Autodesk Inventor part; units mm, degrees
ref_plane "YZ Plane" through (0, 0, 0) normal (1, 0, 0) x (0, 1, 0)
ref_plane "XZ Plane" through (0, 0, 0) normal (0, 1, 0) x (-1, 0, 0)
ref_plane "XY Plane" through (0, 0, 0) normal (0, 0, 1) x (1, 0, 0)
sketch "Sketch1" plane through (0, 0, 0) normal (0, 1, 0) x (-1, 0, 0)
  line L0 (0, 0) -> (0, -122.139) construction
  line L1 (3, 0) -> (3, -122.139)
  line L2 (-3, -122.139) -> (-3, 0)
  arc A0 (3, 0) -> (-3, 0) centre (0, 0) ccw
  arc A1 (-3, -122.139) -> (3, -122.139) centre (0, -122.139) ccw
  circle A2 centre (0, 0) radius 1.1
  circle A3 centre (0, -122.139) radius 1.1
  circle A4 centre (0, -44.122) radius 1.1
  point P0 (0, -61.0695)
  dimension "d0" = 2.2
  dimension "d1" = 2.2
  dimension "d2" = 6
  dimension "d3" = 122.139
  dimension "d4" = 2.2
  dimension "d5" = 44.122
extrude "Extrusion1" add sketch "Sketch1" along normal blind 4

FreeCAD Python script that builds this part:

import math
import FreeCAD as App
import Part
import Sketcher
Q = App.Units.Quantity

doc = App.newDocument("Part")
body = doc.addObject("PartDesign::Body", "Body")

sketch1 = doc.addObject("Sketcher::SketchObject", "Sketch")
body.addObject(sketch1)
sketch1.AttachmentSupport = (doc.XZ_Plane, [""])
sketch1.MapMode = "FlatFace"
sketch1.addGeometry([
    Part.LineSegment(App.Vector(-3, -122.139, 0), App.Vector(-3, 0, 0)),
    Part.ArcOfCircle(Part.Circle(App.Vector(0, 0, 0), App.Vector(0, 0, 1), 3), math.radians(0), math.radians(180)),
    Part.LineSegment(App.Vector(3, 0, 0), App.Vector(3, -122.139, 0)),
    Part.ArcOfCircle(Part.Circle(App.Vector(0, -122.139, 0), App.Vector(0, 0, 1), 3), math.radians(180), math.radians(360)),
    Part.Circle(App.Vector(0, -122.139, 0), App.Vector(0, 0, 1), 1.1),
    Part.Circle(App.Vector(0, -44.122, 0), App.Vector(0, 0, 1), 1.1),
    Part.Circle(App.Vector(0, 0, 0), App.Vector(0, 0, 1), 1.1),
], False)
sketch1.addConstraint([
    Sketcher.Constraint("Tangent", 0, 2, 1, 2),
    Sketcher.Constraint("Tangent", 1, 1, 2, 1),
    Sketcher.Constraint("Tangent", 2, 2, 3, 2),
    Sketcher.Constraint("Tangent", 3, 1, 0, 1),
    Sketcher.Constraint("Vertical", 0),
    Sketcher.Constraint("Vertical", 2),
    Sketcher.Constraint("Coincident", 1, 3, -1, 1),
    Sketcher.Constraint("Coincident", 6, 3, -1, 1),
    Sketcher.Constraint("Coincident", 4, 3, 3, 3),
    Sketcher.Constraint("Equal", 4, 5),
    Sketcher.Constraint("Equal", 5, 6),
    Sketcher.Constraint("PointOnObject", 5, 3, -2),
    Sketcher.Constraint("Radius", 1, Q("3 mm")),
    Sketcher.Constraint("Diameter", 4, Q("2.2 mm")),
    Sketcher.Constraint("DistanceY", 0, 1, 0, 2, Q("122.139 mm")),
    Sketcher.Constraint("DistanceY", 5, 3, -1, 1, Q("44.122 mm")),
])
pad1 = doc.addObject("PartDesign::Pad", "Pad")
body.addObject(pad1)
pad1.Profile = sketch1
pad1.Length = 4
pad1.Reversed = True

doc.recompute()
